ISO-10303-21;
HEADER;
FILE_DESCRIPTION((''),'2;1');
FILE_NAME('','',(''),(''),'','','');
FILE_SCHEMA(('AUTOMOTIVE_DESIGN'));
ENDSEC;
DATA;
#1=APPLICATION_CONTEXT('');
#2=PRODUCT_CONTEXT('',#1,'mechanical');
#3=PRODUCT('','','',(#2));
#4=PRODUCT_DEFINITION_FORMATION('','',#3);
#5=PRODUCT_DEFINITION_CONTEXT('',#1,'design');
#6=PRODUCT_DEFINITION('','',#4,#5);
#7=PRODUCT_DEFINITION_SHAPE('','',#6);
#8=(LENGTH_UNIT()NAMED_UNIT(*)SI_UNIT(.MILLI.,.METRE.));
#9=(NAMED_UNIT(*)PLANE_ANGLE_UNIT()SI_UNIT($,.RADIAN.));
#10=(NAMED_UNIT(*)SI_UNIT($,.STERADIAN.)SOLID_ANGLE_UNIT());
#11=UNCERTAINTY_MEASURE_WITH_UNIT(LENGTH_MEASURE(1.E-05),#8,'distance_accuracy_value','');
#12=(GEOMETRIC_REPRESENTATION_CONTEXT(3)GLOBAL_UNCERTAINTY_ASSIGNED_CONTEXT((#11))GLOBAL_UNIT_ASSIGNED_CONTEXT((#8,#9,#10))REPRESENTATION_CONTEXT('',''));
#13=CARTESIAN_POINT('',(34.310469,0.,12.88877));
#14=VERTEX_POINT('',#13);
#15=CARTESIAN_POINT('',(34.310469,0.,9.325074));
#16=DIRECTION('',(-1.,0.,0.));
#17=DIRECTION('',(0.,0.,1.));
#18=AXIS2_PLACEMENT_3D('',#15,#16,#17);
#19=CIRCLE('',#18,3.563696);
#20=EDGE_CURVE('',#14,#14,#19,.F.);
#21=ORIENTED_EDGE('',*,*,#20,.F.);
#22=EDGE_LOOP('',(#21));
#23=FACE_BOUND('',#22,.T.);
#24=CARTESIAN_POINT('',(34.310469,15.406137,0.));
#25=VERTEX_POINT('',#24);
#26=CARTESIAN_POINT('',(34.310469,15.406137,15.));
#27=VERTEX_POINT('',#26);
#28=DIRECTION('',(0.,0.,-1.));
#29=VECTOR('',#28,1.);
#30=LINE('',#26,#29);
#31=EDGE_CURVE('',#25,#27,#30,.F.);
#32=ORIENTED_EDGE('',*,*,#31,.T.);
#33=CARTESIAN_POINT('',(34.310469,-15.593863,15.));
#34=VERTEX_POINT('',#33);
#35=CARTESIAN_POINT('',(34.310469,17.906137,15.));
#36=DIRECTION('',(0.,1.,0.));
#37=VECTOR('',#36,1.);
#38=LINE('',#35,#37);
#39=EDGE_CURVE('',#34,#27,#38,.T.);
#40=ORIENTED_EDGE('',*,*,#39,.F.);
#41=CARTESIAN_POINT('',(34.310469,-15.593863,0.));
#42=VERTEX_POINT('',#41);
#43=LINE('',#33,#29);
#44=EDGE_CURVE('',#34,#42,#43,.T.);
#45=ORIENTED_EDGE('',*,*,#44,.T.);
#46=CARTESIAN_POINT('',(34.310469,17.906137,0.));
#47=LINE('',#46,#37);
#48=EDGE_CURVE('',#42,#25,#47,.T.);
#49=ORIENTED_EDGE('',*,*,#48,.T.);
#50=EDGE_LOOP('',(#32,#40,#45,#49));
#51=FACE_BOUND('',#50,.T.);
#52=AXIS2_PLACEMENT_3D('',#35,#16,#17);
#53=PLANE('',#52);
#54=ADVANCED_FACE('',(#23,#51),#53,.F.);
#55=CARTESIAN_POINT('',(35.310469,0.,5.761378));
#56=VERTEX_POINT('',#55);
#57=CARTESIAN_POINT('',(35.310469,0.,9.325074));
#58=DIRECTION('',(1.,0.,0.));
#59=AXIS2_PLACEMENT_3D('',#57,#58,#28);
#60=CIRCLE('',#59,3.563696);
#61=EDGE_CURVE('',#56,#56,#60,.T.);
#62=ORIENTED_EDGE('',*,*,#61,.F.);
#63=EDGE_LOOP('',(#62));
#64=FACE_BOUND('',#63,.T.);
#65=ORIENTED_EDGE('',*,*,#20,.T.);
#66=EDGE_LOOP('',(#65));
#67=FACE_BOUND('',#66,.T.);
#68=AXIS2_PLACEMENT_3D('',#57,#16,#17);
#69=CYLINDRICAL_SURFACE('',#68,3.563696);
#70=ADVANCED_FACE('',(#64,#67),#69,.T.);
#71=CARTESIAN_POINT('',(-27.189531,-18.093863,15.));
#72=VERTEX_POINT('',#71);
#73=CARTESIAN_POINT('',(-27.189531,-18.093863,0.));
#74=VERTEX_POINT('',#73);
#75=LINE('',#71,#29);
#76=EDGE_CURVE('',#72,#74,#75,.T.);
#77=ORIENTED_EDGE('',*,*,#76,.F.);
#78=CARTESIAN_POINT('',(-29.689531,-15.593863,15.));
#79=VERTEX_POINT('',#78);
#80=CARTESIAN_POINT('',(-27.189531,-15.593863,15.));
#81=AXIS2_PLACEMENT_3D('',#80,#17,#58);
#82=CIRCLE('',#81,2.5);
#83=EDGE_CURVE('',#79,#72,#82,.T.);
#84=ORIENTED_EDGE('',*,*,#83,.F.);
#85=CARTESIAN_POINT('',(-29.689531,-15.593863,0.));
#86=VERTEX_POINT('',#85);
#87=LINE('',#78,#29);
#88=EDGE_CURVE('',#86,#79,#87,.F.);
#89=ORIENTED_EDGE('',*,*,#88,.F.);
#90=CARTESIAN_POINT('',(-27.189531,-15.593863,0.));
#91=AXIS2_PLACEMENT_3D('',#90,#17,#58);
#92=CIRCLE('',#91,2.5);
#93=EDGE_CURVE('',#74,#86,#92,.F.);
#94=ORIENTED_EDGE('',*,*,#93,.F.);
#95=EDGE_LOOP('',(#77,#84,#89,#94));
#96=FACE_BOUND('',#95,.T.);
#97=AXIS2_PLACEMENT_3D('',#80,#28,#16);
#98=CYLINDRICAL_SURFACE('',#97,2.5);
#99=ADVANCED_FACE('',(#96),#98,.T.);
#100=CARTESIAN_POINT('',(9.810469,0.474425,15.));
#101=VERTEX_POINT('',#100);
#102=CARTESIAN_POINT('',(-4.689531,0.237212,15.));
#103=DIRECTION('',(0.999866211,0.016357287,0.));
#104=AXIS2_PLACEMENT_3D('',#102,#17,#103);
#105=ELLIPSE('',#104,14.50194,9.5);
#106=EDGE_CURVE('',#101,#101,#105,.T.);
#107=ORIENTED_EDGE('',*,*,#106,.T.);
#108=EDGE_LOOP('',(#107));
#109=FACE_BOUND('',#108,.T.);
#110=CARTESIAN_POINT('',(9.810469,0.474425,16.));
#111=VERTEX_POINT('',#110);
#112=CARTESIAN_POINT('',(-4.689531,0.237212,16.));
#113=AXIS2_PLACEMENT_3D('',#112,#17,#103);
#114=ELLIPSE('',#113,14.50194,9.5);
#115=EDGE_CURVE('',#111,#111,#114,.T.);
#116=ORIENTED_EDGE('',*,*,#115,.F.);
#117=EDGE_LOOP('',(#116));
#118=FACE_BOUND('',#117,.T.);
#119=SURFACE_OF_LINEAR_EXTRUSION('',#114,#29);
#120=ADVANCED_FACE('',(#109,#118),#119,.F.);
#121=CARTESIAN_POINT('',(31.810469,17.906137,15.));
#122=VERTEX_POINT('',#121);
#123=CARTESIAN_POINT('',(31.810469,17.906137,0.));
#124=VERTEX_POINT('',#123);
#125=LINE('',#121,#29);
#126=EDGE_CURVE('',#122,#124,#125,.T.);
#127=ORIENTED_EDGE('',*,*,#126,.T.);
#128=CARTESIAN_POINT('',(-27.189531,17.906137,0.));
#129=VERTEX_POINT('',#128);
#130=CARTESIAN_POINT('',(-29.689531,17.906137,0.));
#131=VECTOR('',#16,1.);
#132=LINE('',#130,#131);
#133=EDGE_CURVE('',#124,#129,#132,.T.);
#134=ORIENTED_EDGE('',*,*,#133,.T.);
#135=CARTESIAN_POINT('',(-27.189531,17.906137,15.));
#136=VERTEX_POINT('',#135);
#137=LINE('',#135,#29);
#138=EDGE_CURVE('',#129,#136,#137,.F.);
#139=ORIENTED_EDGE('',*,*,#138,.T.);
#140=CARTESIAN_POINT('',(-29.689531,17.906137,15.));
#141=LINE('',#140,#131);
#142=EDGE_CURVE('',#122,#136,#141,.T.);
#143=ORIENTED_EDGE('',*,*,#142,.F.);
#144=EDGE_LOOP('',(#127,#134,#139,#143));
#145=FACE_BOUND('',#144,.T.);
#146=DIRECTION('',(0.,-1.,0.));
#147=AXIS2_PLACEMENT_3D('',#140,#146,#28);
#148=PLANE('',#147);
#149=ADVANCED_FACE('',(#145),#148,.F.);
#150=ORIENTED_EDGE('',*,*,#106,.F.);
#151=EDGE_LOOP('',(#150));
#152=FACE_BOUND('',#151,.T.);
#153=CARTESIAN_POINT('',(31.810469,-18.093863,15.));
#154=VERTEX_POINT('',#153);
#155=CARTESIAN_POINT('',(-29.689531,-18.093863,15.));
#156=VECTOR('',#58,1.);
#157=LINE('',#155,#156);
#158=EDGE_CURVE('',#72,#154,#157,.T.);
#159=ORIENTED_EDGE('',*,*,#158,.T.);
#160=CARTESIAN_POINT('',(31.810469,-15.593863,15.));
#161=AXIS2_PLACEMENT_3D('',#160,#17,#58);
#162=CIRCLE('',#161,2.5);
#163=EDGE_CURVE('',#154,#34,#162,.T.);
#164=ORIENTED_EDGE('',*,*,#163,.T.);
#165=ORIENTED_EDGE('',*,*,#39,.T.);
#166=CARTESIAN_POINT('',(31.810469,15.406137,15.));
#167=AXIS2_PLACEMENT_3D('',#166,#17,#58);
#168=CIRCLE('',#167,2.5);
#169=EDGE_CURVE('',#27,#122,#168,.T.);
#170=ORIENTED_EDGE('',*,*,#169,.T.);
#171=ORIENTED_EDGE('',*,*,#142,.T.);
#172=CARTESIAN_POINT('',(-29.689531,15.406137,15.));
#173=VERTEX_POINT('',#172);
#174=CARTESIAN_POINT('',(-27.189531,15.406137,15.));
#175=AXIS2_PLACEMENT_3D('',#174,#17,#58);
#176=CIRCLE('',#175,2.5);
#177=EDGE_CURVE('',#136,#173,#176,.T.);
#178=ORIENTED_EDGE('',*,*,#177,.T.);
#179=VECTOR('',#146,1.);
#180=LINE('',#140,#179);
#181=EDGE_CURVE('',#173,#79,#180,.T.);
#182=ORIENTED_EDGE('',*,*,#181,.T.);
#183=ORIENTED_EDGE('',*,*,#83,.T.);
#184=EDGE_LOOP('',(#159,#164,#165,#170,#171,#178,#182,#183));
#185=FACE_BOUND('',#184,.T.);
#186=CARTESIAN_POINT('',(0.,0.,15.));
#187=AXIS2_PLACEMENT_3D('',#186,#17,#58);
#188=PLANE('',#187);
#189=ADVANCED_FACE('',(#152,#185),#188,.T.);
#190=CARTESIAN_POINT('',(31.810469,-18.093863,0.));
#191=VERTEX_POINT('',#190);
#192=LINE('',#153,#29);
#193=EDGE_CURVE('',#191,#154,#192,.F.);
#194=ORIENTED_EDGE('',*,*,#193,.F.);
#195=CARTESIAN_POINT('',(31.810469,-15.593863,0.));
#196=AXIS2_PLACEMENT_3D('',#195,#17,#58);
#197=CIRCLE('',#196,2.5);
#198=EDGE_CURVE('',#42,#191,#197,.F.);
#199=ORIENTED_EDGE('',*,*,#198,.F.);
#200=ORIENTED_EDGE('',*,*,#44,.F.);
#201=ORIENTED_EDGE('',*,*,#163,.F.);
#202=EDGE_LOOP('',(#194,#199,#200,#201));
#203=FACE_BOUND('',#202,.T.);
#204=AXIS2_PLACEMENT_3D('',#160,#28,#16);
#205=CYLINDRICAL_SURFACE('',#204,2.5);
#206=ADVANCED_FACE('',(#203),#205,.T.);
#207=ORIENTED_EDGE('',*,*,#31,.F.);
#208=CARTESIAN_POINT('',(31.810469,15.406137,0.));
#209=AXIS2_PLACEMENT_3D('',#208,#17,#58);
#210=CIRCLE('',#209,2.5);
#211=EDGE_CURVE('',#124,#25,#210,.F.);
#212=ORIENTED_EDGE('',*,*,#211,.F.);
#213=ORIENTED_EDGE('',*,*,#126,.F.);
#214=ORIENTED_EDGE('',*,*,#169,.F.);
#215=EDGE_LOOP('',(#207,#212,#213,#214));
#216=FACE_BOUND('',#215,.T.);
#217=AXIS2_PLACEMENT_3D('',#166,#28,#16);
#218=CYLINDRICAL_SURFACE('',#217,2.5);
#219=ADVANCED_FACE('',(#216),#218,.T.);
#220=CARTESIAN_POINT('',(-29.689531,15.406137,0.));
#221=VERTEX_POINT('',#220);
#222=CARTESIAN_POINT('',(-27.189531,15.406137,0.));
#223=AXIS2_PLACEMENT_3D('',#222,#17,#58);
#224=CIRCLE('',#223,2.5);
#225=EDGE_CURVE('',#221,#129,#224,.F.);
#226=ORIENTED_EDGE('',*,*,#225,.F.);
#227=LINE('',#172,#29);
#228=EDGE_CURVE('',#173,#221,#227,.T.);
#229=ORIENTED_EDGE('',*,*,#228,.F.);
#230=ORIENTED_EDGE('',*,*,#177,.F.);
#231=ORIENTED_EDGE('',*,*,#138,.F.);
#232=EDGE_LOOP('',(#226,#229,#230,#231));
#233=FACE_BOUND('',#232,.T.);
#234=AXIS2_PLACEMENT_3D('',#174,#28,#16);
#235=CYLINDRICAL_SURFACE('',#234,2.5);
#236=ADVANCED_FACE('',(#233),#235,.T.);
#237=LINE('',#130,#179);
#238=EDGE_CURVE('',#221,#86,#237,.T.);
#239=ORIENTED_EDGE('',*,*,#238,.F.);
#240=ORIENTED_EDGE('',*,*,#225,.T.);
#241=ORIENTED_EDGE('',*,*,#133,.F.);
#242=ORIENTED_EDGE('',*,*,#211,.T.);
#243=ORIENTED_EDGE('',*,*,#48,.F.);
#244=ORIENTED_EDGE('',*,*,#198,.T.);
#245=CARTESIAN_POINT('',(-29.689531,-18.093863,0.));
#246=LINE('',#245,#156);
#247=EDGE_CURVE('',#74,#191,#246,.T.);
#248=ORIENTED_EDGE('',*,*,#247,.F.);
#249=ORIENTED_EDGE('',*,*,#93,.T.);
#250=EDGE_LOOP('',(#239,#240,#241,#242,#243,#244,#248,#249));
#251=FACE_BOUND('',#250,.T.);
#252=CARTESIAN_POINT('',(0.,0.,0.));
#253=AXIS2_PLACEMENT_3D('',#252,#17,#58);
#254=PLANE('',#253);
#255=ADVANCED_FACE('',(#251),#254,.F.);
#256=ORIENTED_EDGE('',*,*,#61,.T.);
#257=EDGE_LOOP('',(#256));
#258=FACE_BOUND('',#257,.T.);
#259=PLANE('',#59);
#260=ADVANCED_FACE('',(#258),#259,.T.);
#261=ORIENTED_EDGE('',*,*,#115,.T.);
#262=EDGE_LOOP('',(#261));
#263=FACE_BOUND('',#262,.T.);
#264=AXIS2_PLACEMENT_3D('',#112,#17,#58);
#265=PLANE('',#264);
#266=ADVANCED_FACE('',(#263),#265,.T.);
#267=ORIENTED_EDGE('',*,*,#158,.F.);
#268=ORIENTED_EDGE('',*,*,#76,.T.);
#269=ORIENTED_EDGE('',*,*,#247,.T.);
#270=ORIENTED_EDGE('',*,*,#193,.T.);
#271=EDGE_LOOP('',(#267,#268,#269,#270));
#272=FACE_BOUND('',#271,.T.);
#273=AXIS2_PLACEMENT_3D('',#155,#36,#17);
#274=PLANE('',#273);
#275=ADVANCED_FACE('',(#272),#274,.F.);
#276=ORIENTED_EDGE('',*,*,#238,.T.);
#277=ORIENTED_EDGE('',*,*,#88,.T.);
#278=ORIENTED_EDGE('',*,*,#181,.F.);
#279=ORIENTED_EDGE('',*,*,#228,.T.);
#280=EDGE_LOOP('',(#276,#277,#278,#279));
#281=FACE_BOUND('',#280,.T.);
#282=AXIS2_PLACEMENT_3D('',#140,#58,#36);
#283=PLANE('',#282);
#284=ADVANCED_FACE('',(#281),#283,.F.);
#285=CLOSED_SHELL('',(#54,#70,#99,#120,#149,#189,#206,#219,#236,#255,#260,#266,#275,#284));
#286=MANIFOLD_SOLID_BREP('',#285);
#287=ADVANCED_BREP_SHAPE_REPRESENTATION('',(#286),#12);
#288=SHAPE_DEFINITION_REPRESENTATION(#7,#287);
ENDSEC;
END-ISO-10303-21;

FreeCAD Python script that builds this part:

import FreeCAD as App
import Part
import Sketcher
Q = App.Units.Quantity


def edges_at(feature, points):
    """Names of the edges that pass closest to the given points."""
    edges = feature.Shape.Edges
    near = lambda p: min(range(len(edges)), key=lambda i: edges[i].distToShape(Part.Vertex(*p))[0])
    return sorted({f"Edge{near(p) + 1}" for p in points})

doc = App.newDocument("Part")
body = doc.addObject("PartDesign::Body", "Body")

sketch1 = doc.addObject("Sketcher::SketchObject", "Sketch")
body.addObject(sketch1)
sketch1.AttachmentSupport = (doc.XY_Plane, [""])
sketch1.MapMode = "FlatFace"
sketch1.addGeometry(Part.LineSegment(App.Vector(-30, 18, 0), App.Vector(-30, -18, 0)), False)
sketch1.addGeometry(Part.LineSegment(App.Vector(-30, -18, 0), App.Vector(34, -18, 0)), False)
sketch1.addGeometry(Part.LineSegment(App.Vector(34, -18, 0), App.Vector(34, 18, 0)), False)
sketch1.addGeometry(Part.LineSegment(App.Vector(34, 18, 0), App.Vector(-30, 18, 0)), False)
sketch1.addConstraint(Sketcher.Constraint("Coincident", 0, 2, 1, 1))
sketch1.addConstraint(Sketcher.Constraint("Coincident", 1, 2, 2, 1))
sketch1.addConstraint(Sketcher.Constraint("Coincident", 2, 2, 3, 1))
sketch1.addConstraint(Sketcher.Constraint("Coincident", 3, 2, 0, 1))
sketch1.addConstraint(Sketcher.Constraint("Vertical", 0))
sketch1.addConstraint(Sketcher.Constraint("Horizontal", 1))
sketch1.addConstraint(Sketcher.Constraint("Vertical", 2))
sketch1.addConstraint(Sketcher.Constraint("Horizontal", 3))
sketch1.addConstraint(Sketcher.Constraint("DistanceX", 1, 1, 1, 2, Q("64 mm")))
sketch1.addConstraint(Sketcher.Constraint("DistanceY", 0, 2, 0, 1, Q("36 mm")))
sketch1.addConstraint(Sketcher.Constraint("DistanceX", 0, 2, -1, 1, Q("29.689531 mm")))
sketch1.addConstraint(Sketcher.Constraint("DistanceY", 0, 2, -1, 1, Q("18.093863 mm")))
pad1 = doc.addObject("PartDesign::Pad", "Pad")
body.addObject(pad1)
pad1.Profile = sketch1
pad1.Length = 15
doc.recompute()

fillet = doc.addObject("PartDesign::Fillet", "Fillet")
body.addObject(fillet)
fillet.Base = (pad1, edges_at(pad1, [
    (-29.69, 17.906, 7.5),
    (34.31, 17.906, 7.5),
    (34.31, -18.094, 7.5),
    (-29.69, -18.094, 7.5),
]))
fillet.Radius = 2.5

sketch2 = doc.addObject("Sketcher::SketchObject", "Sketch001")
body.addObject(sketch2)
sketch2.AttachmentSupport = (doc.XY_Plane, [""])
sketch2.MapMode = "FlatFace"
sketch2.AttachmentOffset = App.Placement(App.Vector(0, 0, 15), App.Rotation())
sketch2.addGeometry(Part.Ellipse(App.Vector(9.810469, 0.474425, 0), App.Vector(-4.844925, 9.735941, 0), App.Vector(-4.689531, 0.237212, 0)), False)
sketch2.addConstraint(Sketcher.Constraint("Block", 0))
pad2 = doc.addObject("PartDesign::Pad", "Pad001")
body.addObject(pad2)
pad2.Profile = sketch2
pad2.Length = 1

sketch3 = doc.addObject("Sketcher::SketchObject", "Sketch002")
body.addObject(sketch3)
sketch3.AttachmentSupport = (doc.YZ_Plane, [""])
sketch3.MapMode = "FlatFace"
sketch3.AttachmentOffset = App.Placement(App.Vector(0, 0, 34.310469), App.Rotation())
sketch3.addGeometry(Part.Circle(App.Vector(0, 9.3, 0), App.Vector(0, 0, 1), 3.6), False)
sketch3.addConstraint(Sketcher.Constraint("PointOnObject", 0, 3, -2))
sketch3.addConstraint(Sketcher.Constraint("Diameter", 0, Q("7.127392 mm")))
sketch3.addConstraint(Sketcher.Constraint("DistanceY", -1, 1, 0, 3, Q("9.325074 mm")))
pad3 = doc.addObject("PartDesign::Pad", "Pad002")
body.addObject(pad3)
pad3.Profile = sketch3
pad3.Length = 1

doc.recompute()
